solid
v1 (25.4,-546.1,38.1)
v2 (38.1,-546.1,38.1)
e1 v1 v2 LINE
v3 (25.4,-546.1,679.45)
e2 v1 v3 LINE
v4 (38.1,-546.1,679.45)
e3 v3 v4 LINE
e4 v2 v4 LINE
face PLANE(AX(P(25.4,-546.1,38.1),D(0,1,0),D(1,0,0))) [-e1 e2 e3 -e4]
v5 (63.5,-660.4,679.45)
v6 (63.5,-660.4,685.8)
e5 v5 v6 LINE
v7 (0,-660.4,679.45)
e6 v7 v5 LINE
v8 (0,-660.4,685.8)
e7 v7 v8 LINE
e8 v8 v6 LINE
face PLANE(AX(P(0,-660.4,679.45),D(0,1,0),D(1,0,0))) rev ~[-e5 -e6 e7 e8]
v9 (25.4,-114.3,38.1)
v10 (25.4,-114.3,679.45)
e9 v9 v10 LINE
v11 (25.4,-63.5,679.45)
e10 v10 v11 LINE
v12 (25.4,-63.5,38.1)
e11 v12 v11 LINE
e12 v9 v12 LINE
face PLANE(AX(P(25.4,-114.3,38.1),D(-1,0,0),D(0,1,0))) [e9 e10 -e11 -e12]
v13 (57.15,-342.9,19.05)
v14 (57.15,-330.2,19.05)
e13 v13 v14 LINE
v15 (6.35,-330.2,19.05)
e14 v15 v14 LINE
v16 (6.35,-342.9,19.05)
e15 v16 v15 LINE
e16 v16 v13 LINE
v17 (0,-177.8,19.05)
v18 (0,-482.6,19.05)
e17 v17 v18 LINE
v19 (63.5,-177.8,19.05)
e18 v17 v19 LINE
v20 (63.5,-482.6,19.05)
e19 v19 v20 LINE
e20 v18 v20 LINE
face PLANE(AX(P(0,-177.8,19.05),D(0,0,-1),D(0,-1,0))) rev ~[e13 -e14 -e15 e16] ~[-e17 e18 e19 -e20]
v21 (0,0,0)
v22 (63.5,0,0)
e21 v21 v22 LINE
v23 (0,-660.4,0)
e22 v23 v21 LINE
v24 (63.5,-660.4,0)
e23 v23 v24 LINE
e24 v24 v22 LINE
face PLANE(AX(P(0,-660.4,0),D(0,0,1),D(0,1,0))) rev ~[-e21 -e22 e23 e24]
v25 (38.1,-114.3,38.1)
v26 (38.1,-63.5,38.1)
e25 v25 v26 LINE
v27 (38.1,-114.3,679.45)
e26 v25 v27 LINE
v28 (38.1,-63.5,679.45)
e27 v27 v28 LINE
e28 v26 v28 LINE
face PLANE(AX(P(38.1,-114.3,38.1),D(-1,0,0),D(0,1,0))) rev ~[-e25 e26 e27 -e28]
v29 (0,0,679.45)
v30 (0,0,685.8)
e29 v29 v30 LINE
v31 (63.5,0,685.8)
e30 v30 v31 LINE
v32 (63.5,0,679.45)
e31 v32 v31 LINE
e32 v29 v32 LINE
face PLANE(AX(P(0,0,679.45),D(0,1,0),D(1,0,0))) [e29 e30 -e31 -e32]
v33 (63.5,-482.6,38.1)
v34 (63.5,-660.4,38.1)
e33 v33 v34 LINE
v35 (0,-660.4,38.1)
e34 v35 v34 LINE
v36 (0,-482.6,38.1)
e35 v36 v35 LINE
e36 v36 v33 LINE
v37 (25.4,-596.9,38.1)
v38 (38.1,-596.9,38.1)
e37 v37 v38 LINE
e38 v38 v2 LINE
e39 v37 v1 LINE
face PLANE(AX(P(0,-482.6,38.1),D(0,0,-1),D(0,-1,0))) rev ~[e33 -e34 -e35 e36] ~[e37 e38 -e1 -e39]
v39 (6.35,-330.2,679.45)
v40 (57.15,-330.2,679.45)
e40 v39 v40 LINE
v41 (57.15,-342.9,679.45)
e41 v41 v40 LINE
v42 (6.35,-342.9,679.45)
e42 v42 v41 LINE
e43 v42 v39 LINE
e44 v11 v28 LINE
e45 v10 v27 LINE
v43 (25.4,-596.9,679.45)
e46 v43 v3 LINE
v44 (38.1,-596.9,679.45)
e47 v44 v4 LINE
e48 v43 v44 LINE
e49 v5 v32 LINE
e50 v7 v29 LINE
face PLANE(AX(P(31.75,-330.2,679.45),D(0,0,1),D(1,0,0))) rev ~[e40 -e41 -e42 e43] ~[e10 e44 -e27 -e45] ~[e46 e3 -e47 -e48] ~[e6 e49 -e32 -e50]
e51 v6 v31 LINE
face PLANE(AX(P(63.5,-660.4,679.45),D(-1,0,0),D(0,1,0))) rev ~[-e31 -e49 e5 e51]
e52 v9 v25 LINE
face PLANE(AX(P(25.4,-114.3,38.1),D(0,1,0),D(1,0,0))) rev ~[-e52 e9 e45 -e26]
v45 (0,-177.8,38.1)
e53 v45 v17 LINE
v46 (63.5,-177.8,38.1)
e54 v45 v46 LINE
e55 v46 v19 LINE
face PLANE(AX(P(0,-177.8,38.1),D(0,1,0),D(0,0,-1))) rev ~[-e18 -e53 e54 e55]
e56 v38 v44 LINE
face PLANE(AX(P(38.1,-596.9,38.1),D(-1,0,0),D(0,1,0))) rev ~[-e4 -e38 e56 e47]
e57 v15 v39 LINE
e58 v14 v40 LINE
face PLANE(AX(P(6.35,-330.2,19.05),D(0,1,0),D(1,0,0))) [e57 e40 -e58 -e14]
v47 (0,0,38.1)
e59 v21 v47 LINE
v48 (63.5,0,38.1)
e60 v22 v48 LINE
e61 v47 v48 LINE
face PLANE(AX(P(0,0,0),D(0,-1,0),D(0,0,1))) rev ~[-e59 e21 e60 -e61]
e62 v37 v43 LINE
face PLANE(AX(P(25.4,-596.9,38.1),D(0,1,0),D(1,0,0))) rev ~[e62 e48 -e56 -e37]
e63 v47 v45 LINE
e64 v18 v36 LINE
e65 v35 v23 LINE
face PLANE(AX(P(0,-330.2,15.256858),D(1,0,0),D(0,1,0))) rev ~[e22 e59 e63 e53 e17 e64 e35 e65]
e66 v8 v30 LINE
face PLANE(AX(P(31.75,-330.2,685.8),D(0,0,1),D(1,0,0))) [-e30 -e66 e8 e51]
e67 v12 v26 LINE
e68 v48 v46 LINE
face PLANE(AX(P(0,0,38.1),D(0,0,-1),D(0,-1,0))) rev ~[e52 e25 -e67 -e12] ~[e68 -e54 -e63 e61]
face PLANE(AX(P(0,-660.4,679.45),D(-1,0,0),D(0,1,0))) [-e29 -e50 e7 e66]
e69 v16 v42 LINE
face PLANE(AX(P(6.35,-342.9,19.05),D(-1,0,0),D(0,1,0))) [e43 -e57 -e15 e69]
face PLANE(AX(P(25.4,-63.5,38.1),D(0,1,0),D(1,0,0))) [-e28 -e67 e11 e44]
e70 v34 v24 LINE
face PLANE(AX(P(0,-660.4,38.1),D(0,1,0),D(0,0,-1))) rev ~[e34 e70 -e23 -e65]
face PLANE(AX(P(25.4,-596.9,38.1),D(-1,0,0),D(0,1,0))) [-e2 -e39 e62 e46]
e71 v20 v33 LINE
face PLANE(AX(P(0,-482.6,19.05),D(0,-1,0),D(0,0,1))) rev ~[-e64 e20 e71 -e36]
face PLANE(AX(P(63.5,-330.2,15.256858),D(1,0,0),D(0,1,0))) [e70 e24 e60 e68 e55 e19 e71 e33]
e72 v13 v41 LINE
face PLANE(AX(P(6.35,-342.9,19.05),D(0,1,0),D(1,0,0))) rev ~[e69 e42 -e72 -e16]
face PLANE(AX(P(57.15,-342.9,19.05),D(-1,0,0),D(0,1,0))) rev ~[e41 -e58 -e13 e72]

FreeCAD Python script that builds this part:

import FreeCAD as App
import Part
import Sketcher

V = App.Vector
Q = App.Units.Quantity


def add_polygon(sketch, points):
    """Adds a closed chain of lines whose ends are joined by coincident constraints."""
    first, n = sketch.GeometryCount, len(points)
    for a, b in zip(points, points[1:] + points[:1]):
        sketch.addGeometry(Part.LineSegment(App.Vector(*a, 0), App.Vector(*b, 0)), False)
    for i in range(n):
        sketch.addConstraint(Sketcher.Constraint("Coincident", first + i, 2, first + (i + 1) % n, 1))

doc = App.newDocument("Part")
body = doc.addObject("PartDesign::Body", "Body")

# Sketch on YZ plane
sketch1 = doc.addObject("Sketcher::SketchObject", "Sketch")
body.addObject(sketch1)
sketch1.AttachmentSupport = (doc.YZ_Plane, [""])
sketch1.MapMode = "FlatFace"
add_polygon(sketch1, [(-660.4, 0), (0, 0), (0, 38.1), (-177.8, 38.1), (-177.8, 19.05), (-482.6, 19.05), (-482.6, 38.1), (-660.4, 38.1)])  # lines 0-7
sketch1.addConstraint(Sketcher.Constraint("Horizontal", 0))
sketch1.addConstraint(Sketcher.Constraint("Vertical", 1))
sketch1.addConstraint(Sketcher.Constraint("Horizontal", 2))
sketch1.addConstraint(Sketcher.Constraint("Vertical", 3))
sketch1.addConstraint(Sketcher.Constraint("Horizontal", 4))
sketch1.addConstraint(Sketcher.Constraint("Vertical", 5))
sketch1.addConstraint(Sketcher.Constraint("Horizontal", 6))
sketch1.addConstraint(Sketcher.Constraint("Vertical", 7))
sketch1.addConstraint(Sketcher.Constraint("Coincident", 0, 2, -1, 1))
sketch1.addConstraint(Sketcher.Constraint("Horizontal", 2, 2, 5, 2))
sketch1.addConstraint(Sketcher.Constraint("Equal", 2, 6))
sketch1.addConstraint(Sketcher.Constraint("DistanceX", 0, 1, 0, 2, Q("26 in")))
sketch1.addConstraint(Sketcher.Constraint("DistanceX", 2, 2, 2, 1, Q("7 in")))
sketch1.addConstraint(Sketcher.Constraint("DistanceY", 1, 1, 1, 2, Q("1.5 in")))
sketch1.addConstraint(Sketcher.Constraint("DistanceY", 3, 2, 3, 1, Q("0.75 in")))
pad1 = doc.addObject("PartDesign::Pad", "Pad")
body.addObject(pad1)
pad1.Profile = sketch1
pad1.Length = Q("2.5 in")

# Sketch on XY plane
sketch2 = doc.addObject("Sketcher::SketchObject", "Sketch001")
body.addObject(sketch2)
sketch2.AttachmentSupport = (doc.XY_Plane, [""])
sketch2.MapMode = "FlatFace"
sketch2.AttachmentOffset = App.Placement(V(0, 0, 0.75 * 25.4), App.Rotation())
add_polygon(sketch2, [(6.35, -330.2), (6.35, -342.9), (57.15, -342.9), (57.15, -330.2)])  # lines 0-3
sketch2.addConstraint(Sketcher.Constraint("Vertical", 0))
sketch2.addConstraint(Sketcher.Constraint("Horizontal", 1))
sketch2.addConstraint(Sketcher.Constraint("Vertical", 2))
sketch2.addConstraint(Sketcher.Constraint("Horizontal", 3))
sketch2.addConstraint(Sketcher.Constraint("DistanceX", 1, 1, 1, 2, Q("2 in")))
sketch2.addConstraint(Sketcher.Constraint("DistanceY", 0, 2, 0, 1, Q("0.5 in")))
sketch2.addConstraint(Sketcher.Constraint("DistanceY", 2, 2, -1, 1, Q("13 in")))
sketch2.addConstraint(Sketcher.Constraint("DistanceX", -1, 1, 0, 2, Q("0.25 in")))
pad2 = doc.addObject("PartDesign::Pad", "Pad001")
body.addObject(pad2)
pad2.Profile = sketch2
pad2.Length = Q("26 in")

# Sketch on XY plane
sketch3 = doc.addObject("Sketcher::SketchObject", "Sketch002")
body.addObject(sketch3)
sketch3.AttachmentSupport = (doc.XY_Plane, [""])
sketch3.MapMode = "FlatFace"
sketch3.AttachmentOffset = App.Placement(V(0, 0, 1.5 * 25.4), App.Rotation())
add_polygon(sketch3, [(25.4, -546.1), (25.4, -596.9), (38.1, -596.9), (38.1, -546.1)])  # lines 0-3
add_polygon(sketch3, [(25.4, -63.5), (25.4, -114.3), (38.1, -114.3), (38.1, -63.5)])  # lines 4-7
sketch3.addConstraint(Sketcher.Constraint("Vertical", 0))
sketch3.addConstraint(Sketcher.Constraint("Horizontal", 1))
sketch3.addConstraint(Sketcher.Constraint("Vertical", 2))
sketch3.addConstraint(Sketcher.Constraint("Horizontal", 3))
sketch3.addConstraint(Sketcher.Constraint("Vertical", 4))
sketch3.addConstraint(Sketcher.Constraint("Horizontal", 5))
sketch3.addConstraint(Sketcher.Constraint("Vertical", 6))
sketch3.addConstraint(Sketcher.Constraint("Horizontal", 7))
sketch3.addConstraint(Sketcher.Constraint("Vertical", 3, 2, 4, 2))
sketch3.addConstraint(Sketcher.Constraint("Vertical", 2, 2, 5, 2))
sketch3.addConstraint(Sketcher.Constraint("Equal", 2, 4))
sketch3.addConstraint(Sketcher.Constraint("DistanceY", 0, 2, 0, 1, Q("2 in")))
sketch3.addConstraint(Sketcher.Constraint("DistanceX", 1, 1, 1, 2, Q("0.5 in")))
sketch3.addConstraint(Sketcher.Constraint("DistanceX", -1, 1, 0, 2, Q("1 in")))
sketch3.addConstraint(Sketcher.Constraint("DistanceY", 3, 2, 4, 2, Q("17 in")))
sketch3.addConstraint(Sketcher.Constraint("DistanceY", 0, 2, -1, 1, Q("23.5 in")))
pad3 = doc.addObject("PartDesign::Pad", "Pad002")
body.addObject(pad3)
pad3.Profile = sketch3
pad3.Length = Q("25.25 in")

# Sketch on XY plane
sketch4 = doc.addObject("Sketcher::SketchObject", "Sketch003")
body.addObject(sketch4)
sketch4.AttachmentSupport = (doc.XY_Plane, [""])
sketch4.MapMode = "FlatFace"
sketch4.AttachmentOffset = App.Placement(V(0, 0, 26.75 * 25.4), App.Rotation())
add_polygon(sketch4, [(0, 0), (0, -660.4), (63.5, -660.4), (63.5, 0)])  # lines 0-3
sketch4.addConstraint(Sketcher.Constraint("Vertical", 0))
sketch4.addConstraint(Sketcher.Constraint("Horizontal", 1))
sketch4.addConstraint(Sketcher.Constraint("Vertical", 2))
sketch4.addConstraint(Sketcher.Constraint("Horizontal", 3))
sketch4.addConstraint(Sketcher.Constraint("Coincident", 3, 2, -1, 1))
sketch4.addConstraint(Sketcher.Constraint("DistanceY", 0, 2, 0, 1, Q("26 in")))
sketch4.addConstraint(Sketcher.Constraint("DistanceX", 1, 1, 1, 2, Q("2.5 in")))
pad4 = doc.addObject("PartDesign::Pad", "Pad003")
body.addObject(pad4)
pad4.Profile = sketch4
pad4.Length = Q("0.25 in")

doc.recompute()
